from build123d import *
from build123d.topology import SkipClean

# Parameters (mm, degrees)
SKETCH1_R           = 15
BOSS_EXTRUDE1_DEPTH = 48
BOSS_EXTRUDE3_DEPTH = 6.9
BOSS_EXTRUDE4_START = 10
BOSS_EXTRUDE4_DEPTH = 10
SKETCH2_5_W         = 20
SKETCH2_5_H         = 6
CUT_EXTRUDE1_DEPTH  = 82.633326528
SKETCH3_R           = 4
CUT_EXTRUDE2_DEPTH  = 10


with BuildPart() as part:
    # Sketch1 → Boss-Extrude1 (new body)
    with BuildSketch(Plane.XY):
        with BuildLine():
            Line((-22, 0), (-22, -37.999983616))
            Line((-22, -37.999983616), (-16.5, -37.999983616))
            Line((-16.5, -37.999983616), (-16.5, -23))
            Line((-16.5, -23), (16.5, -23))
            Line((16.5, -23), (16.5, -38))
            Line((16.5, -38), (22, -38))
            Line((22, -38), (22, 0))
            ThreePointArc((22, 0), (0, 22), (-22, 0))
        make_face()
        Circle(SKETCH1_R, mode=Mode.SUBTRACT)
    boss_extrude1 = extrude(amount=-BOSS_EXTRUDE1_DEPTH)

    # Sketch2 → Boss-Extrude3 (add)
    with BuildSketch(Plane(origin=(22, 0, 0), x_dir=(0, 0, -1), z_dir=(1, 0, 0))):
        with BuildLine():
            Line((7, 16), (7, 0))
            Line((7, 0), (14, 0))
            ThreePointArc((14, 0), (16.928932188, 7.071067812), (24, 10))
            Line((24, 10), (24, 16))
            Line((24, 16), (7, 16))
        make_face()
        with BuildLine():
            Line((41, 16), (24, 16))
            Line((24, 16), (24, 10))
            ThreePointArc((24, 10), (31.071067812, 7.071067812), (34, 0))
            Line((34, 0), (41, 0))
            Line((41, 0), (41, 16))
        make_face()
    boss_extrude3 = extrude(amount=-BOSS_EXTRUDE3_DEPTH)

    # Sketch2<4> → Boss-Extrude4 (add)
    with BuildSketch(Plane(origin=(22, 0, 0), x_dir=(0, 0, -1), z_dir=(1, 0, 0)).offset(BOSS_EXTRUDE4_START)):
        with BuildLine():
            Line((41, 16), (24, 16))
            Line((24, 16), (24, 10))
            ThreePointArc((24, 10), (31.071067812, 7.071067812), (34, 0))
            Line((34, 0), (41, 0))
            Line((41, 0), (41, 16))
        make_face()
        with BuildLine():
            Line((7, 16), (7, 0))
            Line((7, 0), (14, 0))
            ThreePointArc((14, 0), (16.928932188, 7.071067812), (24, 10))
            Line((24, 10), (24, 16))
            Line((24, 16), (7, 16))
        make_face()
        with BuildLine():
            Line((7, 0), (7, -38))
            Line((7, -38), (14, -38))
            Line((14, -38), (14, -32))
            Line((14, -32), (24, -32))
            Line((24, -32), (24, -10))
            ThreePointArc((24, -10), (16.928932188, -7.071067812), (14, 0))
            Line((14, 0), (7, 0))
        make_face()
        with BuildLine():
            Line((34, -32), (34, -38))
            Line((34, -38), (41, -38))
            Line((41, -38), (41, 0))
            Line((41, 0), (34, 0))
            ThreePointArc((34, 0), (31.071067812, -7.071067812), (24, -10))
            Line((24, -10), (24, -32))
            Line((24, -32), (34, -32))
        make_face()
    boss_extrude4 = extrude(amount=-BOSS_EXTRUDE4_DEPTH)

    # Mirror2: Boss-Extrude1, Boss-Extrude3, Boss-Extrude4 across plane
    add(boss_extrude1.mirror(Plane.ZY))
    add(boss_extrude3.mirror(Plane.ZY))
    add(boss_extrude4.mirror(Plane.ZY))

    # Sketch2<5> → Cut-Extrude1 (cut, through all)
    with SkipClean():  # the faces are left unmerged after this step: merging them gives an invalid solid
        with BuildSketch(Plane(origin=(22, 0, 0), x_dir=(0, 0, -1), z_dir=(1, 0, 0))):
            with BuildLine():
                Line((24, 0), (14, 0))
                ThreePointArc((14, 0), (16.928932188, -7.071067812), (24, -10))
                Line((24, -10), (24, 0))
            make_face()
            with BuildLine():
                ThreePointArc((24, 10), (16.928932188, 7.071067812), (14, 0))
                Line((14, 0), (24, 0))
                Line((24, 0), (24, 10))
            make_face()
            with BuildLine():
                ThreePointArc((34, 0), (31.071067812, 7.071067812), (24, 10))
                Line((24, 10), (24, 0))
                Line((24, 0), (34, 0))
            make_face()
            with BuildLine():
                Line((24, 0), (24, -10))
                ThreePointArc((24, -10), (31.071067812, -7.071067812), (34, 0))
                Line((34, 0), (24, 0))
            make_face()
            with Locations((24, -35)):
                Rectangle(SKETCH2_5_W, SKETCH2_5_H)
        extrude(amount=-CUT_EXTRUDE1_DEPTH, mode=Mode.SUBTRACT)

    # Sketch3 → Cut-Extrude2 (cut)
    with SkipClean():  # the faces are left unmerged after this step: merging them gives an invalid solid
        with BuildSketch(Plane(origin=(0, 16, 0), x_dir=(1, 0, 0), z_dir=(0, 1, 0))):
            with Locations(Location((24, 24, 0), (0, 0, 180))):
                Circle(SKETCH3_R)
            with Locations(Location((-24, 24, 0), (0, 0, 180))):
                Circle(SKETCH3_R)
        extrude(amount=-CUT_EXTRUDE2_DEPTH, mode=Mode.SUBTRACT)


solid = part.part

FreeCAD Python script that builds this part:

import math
import FreeCAD as App
import Part
import Sketcher

V = App.Vector
Q = App.Units.Quantity

doc = App.newDocument("Part")
body = doc.addObject("PartDesign::Body", "Body")

sketch1 = body.newObject("Sketcher::SketchObject", "Sketch")
sketch1.AttachmentSupport = (doc.getObject("XY_Plane"), [""])
sketch1.MapMode = "FlatFace"
sketch1.addGeometry([
    Part.LineSegment(V(-22, 0, 0), V(-22, -38, 0)),
    Part.LineSegment(V(-22, -38, 0), V(-16, -38, 0)),
    Part.LineSegment(V(-16, -38, 0), V(-16, -23, 0)),
    Part.LineSegment(V(-16, -23, 0), V(16, -23, 0)),
    Part.LineSegment(V(16, -23, 0), V(16, -38, 0)),
    Part.LineSegment(V(16, -38, 0), V(22, -38, 0)),
    Part.LineSegment(V(22, -38, 0), V(22, 0, 0)),
    Part.ArcOfCircle(Part.Circle(V(0, 0, 0), V(0, 0, 1), 22), math.radians(0), math.radians(180)),
    Part.Circle(V(0, 0, 0), V(0, 0, 1), 15),
], False)
sketch1.addConstraint([
    Sketcher.Constraint("Coincident", 0, 2, 1, 1),
    Sketcher.Constraint("Coincident", 1, 2, 2, 1),
    Sketcher.Constraint("Coincident", 2, 2, 3, 1),
    Sketcher.Constraint("Coincident", 3, 2, 4, 1),
    Sketcher.Constraint("Coincident", 4, 2, 5, 1),
    Sketcher.Constraint("Coincident", 5, 2, 6, 1),
    Sketcher.Constraint("Tangent", 6, 2, 7, 1),
    Sketcher.Constraint("Tangent", 7, 2, 0, 1),
    Sketcher.Constraint("Vertical", 0),
    Sketcher.Constraint("Horizontal", 1),
    Sketcher.Constraint("Vertical", 2),
    Sketcher.Constraint("Horizontal", 3),
    Sketcher.Constraint("Vertical", 4),
    Sketcher.Constraint("Horizontal", 5),
    Sketcher.Constraint("Vertical", 6),
    Sketcher.Constraint("Coincident", 7, 3, -1, 1),
    Sketcher.Constraint("Coincident", 8, 3, -1, 1),
    Sketcher.Constraint("Equal", 1, 5),
    Sketcher.Constraint("Diameter", 8, Q("30 mm")),
    Sketcher.Constraint("Radius", 7, Q("22 mm")),
    Sketcher.Constraint("DistanceX", 3, 1, 3, 2, Q("33 mm")),
    Sketcher.Constraint("DistanceY", 4, 2, 4, 1, Q("15 mm")),
    Sketcher.Constraint("DistanceY", 6, 1, 6, 2, Q("38 mm")),
    Sketcher.Constraint("DistanceY", 0, 2, 0, 1, Q("37.999984 mm")),
])
pad1 = body.newObject("PartDesign::Pad", "Pad")
pad1.Profile = sketch1
pad1.Length = 48
pad1.Reversed = True

sketch2 = body.newObject("Sketcher::SketchObject", "Sketch001")
sketch2.AttachmentSupport = (doc.getObject("YZ_Plane"), [""])
sketch2.MapMode = "FlatFace"
sketch2.AttachmentOffset = App.Placement(V(0, 0, 22), App.Rotation())
sketch2.addGeometry([
    Part.LineSegment(V(16, -7, 0), V(0, -7, 0)),
    Part.LineSegment(V(0, -7, 0), V(0, -14, 0)),
    Part.ArcOfCircle(Part.Circle(V(0, -24, 0), V(0, 0, 1), 10), math.radians(0), math.radians(90)),
    Part.ArcOfCircle(Part.Circle(V(0, -24, 0), V(0, 0, 1), 10), math.radians(-90), math.radians(0)),
    Part.LineSegment(V(0, -34, 0), V(0, -41, 0)),
    Part.LineSegment(V(0, -41, 0), V(16, -41, 0)),
    Part.LineSegment(V(16, -41, 0), V(16, -7, 0)),
], False)
sketch2.addConstraint([
    Sketcher.Constraint("Coincident", 0, 2, 1, 1),
    Sketcher.Constraint("Coincident", 1, 2, 2, 2),
    Sketcher.Constraint("Tangent", 2, 1, 3, 2),
    Sketcher.Constraint("Coincident", 3, 1, 4, 1),
    Sketcher.Constraint("Coincident", 4, 2, 5, 1),
    Sketcher.Constraint("Coincident", 5, 2, 6, 1),
    Sketcher.Constraint("Coincident", 6, 2, 0, 1),
    Sketcher.Constraint("Horizontal", 0),
    Sketcher.Constraint("Vertical", 1),
    Sketcher.Constraint("Vertical", 4),
    Sketcher.Constraint("Horizontal", 5),
    Sketcher.Constraint("Vertical", 6),
    Sketcher.Constraint("Equal", 2, 3),
    Sketcher.Constraint("PointOnObject", 2, 3, -2),
    Sketcher.Constraint("PointOnObject", 0, 2, -2),
    Sketcher.Constraint("PointOnObject", 3, 1, -2),
    Sketcher.Constraint("Horizontal", 3, 3, 2, 1),
    Sketcher.Constraint("Equal", 1, 4),
    Sketcher.Constraint("Radius", 2, Q("10 mm")),
    Sketcher.Constraint("DistanceX", 0, 2, 0, 1, Q("16 mm")),
    Sketcher.Constraint("DistanceY", 1, 2, 1, 1, Q("7 mm")),
    Sketcher.Constraint("DistanceY", 2, 3, -1, 1, Q("24 mm")),
])
pad2 = body.newObject("PartDesign::Pad", "Pad001")
pad2.Profile = sketch2
pad2.Length = 6.9
pad2.Reversed = True

sketch3 = body.newObject("Sketcher::SketchObject", "Sketch002")
sketch3.AttachmentSupport = (doc.getObject("YZ_Plane"), [""])
sketch3.MapMode = "FlatFace"
sketch3.AttachmentOffset = App.Placement(V(0, 0, 32), App.Rotation())
sketch3.addGeometry([
    Part.LineSegment(V(16, -41, 0), V(16, -7, 0)),
    Part.LineSegment(V(16, -7, 0), V(-38, -7, 0)),
    Part.LineSegment(V(-38, -7, 0), V(-38, -14, 0)),
    Part.LineSegment(V(-38, -14, 0), V(-32, -14, 0)),
    Part.LineSegment(V(-32, -14, 0), V(-32, -34, 0)),
    Part.LineSegment(V(-32, -34, 0), V(-38, -34, 0)),
    Part.LineSegment(V(-38, -34, 0), V(-38, -41, 0)),
    Part.LineSegment(V(-38, -41, 0), V(16, -41, 0)),
    Part.ArcOfCircle(Part.Circle(V(0, -24, 0), V(0, 0, 1), 10), math.radians(90), math.radians(180)),
    Part.ArcOfCircle(Part.Circle(V(0, -24, 0), V(0, 0, 1), 10), math.radians(0), math.radians(90)),
    Part.ArcOfCircle(Part.Circle(V(0, -24, 0), V(0, 0, 1), 10), math.radians(-90), math.radians(0)),
    Part.ArcOfCircle(Part.Circle(V(0, -24, 0), V(0, 0, 1), 10), math.radians(180), math.radians(270)),
], False)
sketch3.addConstraint([
    Sketcher.Constraint("Coincident", 0, 2, 1, 1),
    Sketcher.Constraint("Coincident", 1, 2, 2, 1),
    Sketcher.Constraint("Coincident", 2, 2, 3, 1),
    Sketcher.Constraint("Coincident", 3, 2, 4, 1),
    Sketcher.Constraint("Coincident", 4, 2, 5, 1),
    Sketcher.Constraint("Coincident", 5, 2, 6, 1),
    Sketcher.Constraint("Coincident", 6, 2, 7, 1),
    Sketcher.Constraint("Coincident", 7, 2, 0, 1),
    Sketcher.Constraint("Tangent", 8, 1, 9, 2),
    Sketcher.Constraint("Tangent", 9, 1, 10, 2),
    Sketcher.Constraint("Tangent", 10, 1, 11, 2),
    Sketcher.Constraint("Tangent", 11, 1, 8, 2),
    Sketcher.Constraint("Vertical", 0),
    Sketcher.Constraint("Horizontal", 1),
    Sketcher.Constraint("Vertical", 2),
    Sketcher.Constraint("Horizontal", 3),
    Sketcher.Constraint("Vertical", 4),
    Sketcher.Constraint("Horizontal", 5),
    Sketcher.Constraint("Vertical", 6),
    Sketcher.Constraint("Horizontal", 7),
    Sketcher.Constraint("Equal", 8, 9),
    Sketcher.Constraint("Symmetric", 9, 1, 11, 1, -2),
    Sketcher.Constraint("PointOnObject", 8, 1, -2),
    Sketcher.Constraint("PointOnObject", 10, 1, -2),
    Sketcher.Constraint("Horizontal", 3, 2, 8, 1),
    Sketcher.Constraint("Horizontal", 11, 3, 9, 1),
    Sketcher.Constraint("Horizontal", 5, 2, 10, 1),
    Sketcher.Constraint("Vertical", 2, 2, 5, 2),
    Sketcher.Constraint("Equal", 2, 6),
    Sketcher.Constraint("Radius", 8, Q("10 mm")),
    Sketcher.Constraint("DistanceX", 1, 2, 1, 1, Q("54 mm")),
    Sketcher.Constraint("DistanceX", 3, 1, 3, 2, Q("6 mm")),
    Sketcher.Constraint("DistanceY", 0, 1, 0, 2, Q("34 mm")),
    Sketcher.Constraint("DistanceY", 8, 3, -1, 1, Q("24 mm")),
    Sketcher.Constraint("DistanceX", -1, 1, 0, 2, Q("16 mm")),
])
pad3 = body.newObject("PartDesign::Pad", "Pad002")
pad3.Profile = sketch3
pad3.Length = 10
pad3.Reversed = True
doc.recompute()

mirrored = body.newObject("PartDesign::Mirrored", "Mirrored")
mirrored.Originals = [pad1, pad2, pad3]
mirrored.MirrorPlane = (doc.getObject("YZ_Plane"), [""])
body.Tip = mirrored

sketch4 = body.newObject("Sketcher::SketchObject", "Sketch003")
sketch4.AttachmentSupport = (doc.getObject("YZ_Plane"), [""])
sketch4.MapMode = "FlatFace"
sketch4.AttachmentOffset = App.Placement(V(0, 0, 22), App.Rotation())
sketch4.addGeometry([
    Part.LineSegment(V(0, -24, 0), V(0, -14, 0)),
    Part.ArcOfCircle(Part.Circle(V(0, -24, 0), V(0, 0, 1), 10), math.radians(90), math.radians(180)),
    Part.LineSegment(V(-10, -24, 0), V(0, -24, 0)),
    Part.ArcOfCircle(Part.Circle(V(0, -24, 0), V(0, 0, 1), 10), math.radians(0), math.radians(90)),
    Part.LineSegment(V(0, -14, 0), V(0, -24, 0)),
    Part.LineSegment(V(0, -24, 0), V(10, -24, 0)),
    Part.ArcOfCircle(Part.Circle(V(0, -24, 0), V(0, 0, 1), 10), math.radians(-90), math.radians(0)),
    Part.LineSegment(V(10, -24, 0), V(0, -24, 0)),
    Part.LineSegment(V(0, -24, 0), V(0, -34, 0)),
    Part.LineSegment(V(0, -24, 0), V(-10, -24, 0)),
    Part.ArcOfCircle(Part.Circle(V(0, -24, 0), V(0, 0, 1), 10), math.radians(180), math.radians(270)),
    Part.LineSegment(V(0, -34, 0), V(0, -24, 0)),
    Part.LineSegment(V(-32, -14, 0), V(-38, -14, 0)),
    Part.LineSegment(V(-38, -14, 0), V(-38, -34, 0)),
    Part.LineSegment(V(-38, -34, 0), V(-32, -34, 0)),
    Part.LineSegment(V(-32, -34, 0), V(-32, -14, 0)),
], False)
sketch4.addConstraint([
    Sketcher.Constraint("Coincident", 0, 2, 1, 1),
    Sketcher.Constraint("Coincident", 1, 2, 2, 1),
    Sketcher.Constraint("Coincident", 2, 2, 0, 1),
    Sketcher.Constraint("Coincident", 3, 2, 4, 1),
    Sketcher.Constraint("Coincident", 4, 2, 5, 1),
    Sketcher.Constraint("Coincident", 5, 2, 3, 1),
    Sketcher.Constraint("Coincident", 6, 2, 7, 1),
    Sketcher.Constraint("Coincident", 7, 2, 8, 1),
    Sketcher.Constraint("Coincident", 8, 2, 6, 1),
    Sketcher.Constraint("Coincident", 9, 2, 10, 1),
    Sketcher.Constraint("Coincident", 10, 2, 11, 1),
    Sketcher.Constraint("Coincident", 11, 2, 9, 1),
    Sketcher.Constraint("Coincident", 12, 2, 13, 1),
    Sketcher.Constraint("Coincident", 13, 2, 14, 1),
    Sketcher.Constraint("Coincident", 14, 2, 15, 1),
    Sketcher.Constraint("Coincident", 15, 2, 12, 1),
    Sketcher.Constraint("Vertical", 0),
    Sketcher.Constraint("Horizontal", 2),
    Sketcher.Constraint("Vertical", 4),
    Sketcher.Constraint("Horizontal", 5),
    Sketcher.Constraint("Horizontal", 7),
    Sketcher.Constraint("Vertical", 8),
    Sketcher.Constraint("Horizontal", 9),
    Sketcher.Constraint("Vertical", 11),
    Sketcher.Constraint("Horizontal", 12),
    Sketcher.Constraint("Vertical", 13),
    Sketcher.Constraint("Horizontal", 14),
    Sketcher.Constraint("Vertical", 15),
    Sketcher.Constraint("Coincident", 3, 3, 1, 3),
    Sketcher.Constraint("Coincident", 6, 3, 1, 3),
    Sketcher.Constraint("Coincident", 10, 3, 1, 3),
    Sketcher.Constraint("Coincident", 2, 2, 1, 3),
    Sketcher.Constraint("Coincident", 3, 2, 0, 2),
    Sketcher.Constraint("Coincident", 6, 2, 5, 2),
    Sketcher.Constraint("Coincident", 7, 2, 1, 3),
    Sketcher.Constraint("Coincident", 9, 2, 1, 2),
    Sketcher.Constraint("PointOnObject", 1, 3, -2),
    Sketcher.Constraint("PointOnObject", 10, 2, -2),
    Sketcher.Constraint("Horizontal", 3, 2, 12, 2),
    Sketcher.Constraint("Horizontal", 10, 2, 13, 2),
    Sketcher.Constraint("Radius", 1, Q("10 mm")),
    Sketcher.Constraint("DistanceX", 12, 2, 12, 1, Q("6 mm")),
    Sketcher.Constraint("DistanceY", 1, 3, -1, 1, Q("24 mm")),
    Sketcher.Constraint("DistanceX", 12, 2, -1, 1, Q("38 mm")),
])
pocket1 = body.newObject("PartDesign::Pocket", "Pocket")
pocket1.Profile = sketch4
pocket1.Type = "ThroughAll"

sketch5 = body.newObject("Sketcher::SketchObject", "Sketch004")
sketch5.AttachmentSupport = (doc.getObject("XZ_Plane"), [""])
sketch5.MapMode = "FlatFace"
sketch5.AttachmentOffset = App.Placement(V(0, 0, -16), App.Rotation())
sketch5.addGeometry([
    Part.Circle(V(24, -24, 0), V(0, 0, 1), 4),
    Part.Circle(V(-24, -24, 0), V(0, 0, 1), 4),
], False)
sketch5.addConstraint([
    Sketcher.Constraint("Equal", 0, 1),
    Sketcher.Constraint("Symmetric", 0, 3, 1, 3, -2),
    Sketcher.Constraint("Diameter", 0, Q("8 mm")),
    Sketcher.Constraint("DistanceX", -1, 1, 0, 3, Q("24 mm")),
    Sketcher.Constraint("DistanceY", 0, 3, -1, 1, Q("24 mm")),
])
pocket2 = body.newObject("PartDesign::Pocket", "Pocket001")
pocket2.Profile = sketch5
pocket2.Length = 10
pocket2.Reversed = True

doc.recompute()
